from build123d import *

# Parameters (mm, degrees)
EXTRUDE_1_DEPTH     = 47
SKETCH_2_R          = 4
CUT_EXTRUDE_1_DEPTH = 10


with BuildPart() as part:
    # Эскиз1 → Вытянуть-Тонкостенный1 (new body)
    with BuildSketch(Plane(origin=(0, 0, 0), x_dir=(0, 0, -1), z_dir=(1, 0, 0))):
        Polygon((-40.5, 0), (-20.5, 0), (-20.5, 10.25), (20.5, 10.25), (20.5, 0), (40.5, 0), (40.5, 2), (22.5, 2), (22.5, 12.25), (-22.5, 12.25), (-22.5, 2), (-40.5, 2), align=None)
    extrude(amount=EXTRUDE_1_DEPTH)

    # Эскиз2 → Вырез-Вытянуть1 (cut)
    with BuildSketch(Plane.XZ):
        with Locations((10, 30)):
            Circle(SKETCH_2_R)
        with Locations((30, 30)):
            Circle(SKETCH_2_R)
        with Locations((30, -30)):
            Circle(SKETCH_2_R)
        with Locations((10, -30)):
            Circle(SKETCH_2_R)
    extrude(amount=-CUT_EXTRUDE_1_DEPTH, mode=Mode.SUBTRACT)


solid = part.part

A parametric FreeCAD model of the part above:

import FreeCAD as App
import Part
import Sketcher

doc = App.newDocument("Part")
params = doc.addObject("Spreadsheet::Sheet", "Params")
for row, (alias, value) in enumerate([
    ("sketch1_width", "2 mm"),
    ("sketch1_height", "20 mm"),
    ("sketch1_height2", "41 mm"),
    ("sketch1_height3", "18 mm"),
    ("sketch1_width2", "10.25 mm"),
    ("pad1_length", "47 mm"),
    ("sketch2_diameter", "8 mm"),
    ("pocket1_length", "10 mm"),
], start=1):
    params.set(f"A{row}", alias)
    params.set(f"B{row}", "=" + value)
    params.setAlias(f"B{row}", alias)

body = doc.addObject("PartDesign::Body", "Body")

# Sketch on YZ plane
sketch1 = doc.addObject("Sketcher::SketchObject", "Sketch")
body.addObject(sketch1)
sketch1.AttachmentSupport = (doc.YZ_Plane, [""])
sketch1.MapMode = "FlatFace"
sketch1.addGeometry([
    Part.LineSegment(App.Vector(0, 40.5, 0), App.Vector(0, 20.5, 0)),  # 0
    Part.LineSegment(App.Vector(0, 20.5, 0), App.Vector(10.2, 20.5, 0)),  # 1
    Part.LineSegment(App.Vector(10.2, 20.5, 0), App.Vector(10.2, -20.5, 0)),  # 2
    Part.LineSegment(App.Vector(10.2, -20.5, 0), App.Vector(0, -20.5, 0)),  # 3
    Part.LineSegment(App.Vector(0, -20.5, 0), App.Vector(0, -40.5, 0)),  # 4
    Part.LineSegment(App.Vector(0, -40.5, 0), App.Vector(2, -40.5, 0)),  # 5
    Part.LineSegment(App.Vector(2, -40.5, 0), App.Vector(2, -22.5, 0)),  # 6
    Part.LineSegment(App.Vector(2, -22.5, 0), App.Vector(12.2, -22.5, 0)),  # 7
    Part.LineSegment(App.Vector(12.2, -22.5, 0), App.Vector(12.2, 22.5, 0)),  # 8
    Part.LineSegment(App.Vector(12.2, 22.5, 0), App.Vector(2, 22.5, 0)),  # 9
    Part.LineSegment(App.Vector(2, 22.5, 0), App.Vector(2, 40.5, 0)),  # 10
    Part.LineSegment(App.Vector(2, 40.5, 0), App.Vector(0, 40.5, 0)),  # 11
], False)
sketch1.addConstraint([
    Sketcher.Constraint("Coincident", 0, 2, 1, 1),
    Sketcher.Constraint("Coincident", 1, 2, 2, 1),
    Sketcher.Constraint("Coincident", 2, 2, 3, 1),
    Sketcher.Constraint("Coincident", 3, 2, 4, 1),
    Sketcher.Constraint("Coincident", 4, 2, 5, 1),
    Sketcher.Constraint("Coincident", 5, 2, 6, 1),
    Sketcher.Constraint("Coincident", 6, 2, 7, 1),
    Sketcher.Constraint("Coincident", 7, 2, 8, 1),
    Sketcher.Constraint("Coincident", 8, 2, 9, 1),
    Sketcher.Constraint("Coincident", 9, 2, 10, 1),
    Sketcher.Constraint("Coincident", 10, 2, 11, 1),
    Sketcher.Constraint("Coincident", 11, 2, 0, 1),
    Sketcher.Constraint("Vertical", 0),
    Sketcher.Constraint("Horizontal", 1),
    Sketcher.Constraint("Vertical", 2),
    Sketcher.Constraint("Horizontal", 3),
    Sketcher.Constraint("Vertical", 4),
    Sketcher.Constraint("Horizontal", 5),
    Sketcher.Constraint("Vertical", 6),
    Sketcher.Constraint("Horizontal", 7),
    Sketcher.Constraint("Vertical", 8),
    Sketcher.Constraint("Horizontal", 9),
    Sketcher.Constraint("Vertical", 10),
    Sketcher.Constraint("Horizontal", 11),
    Sketcher.Constraint("Symmetric", 0, 2, 3, 2, -1, 1),
    Sketcher.Constraint("Symmetric", 6, 2, 9, 2, -1),
    Sketcher.Constraint("Symmetric", 4, 2, 11, 2, -1),
    Sketcher.Constraint("Equal", 3, 7),
    Sketcher.Constraint("DistanceX", 5, 1, 5, 2, 2.0),
    Sketcher.Constraint("DistanceY", 0, 2, 0, 1, 20.0),
    Sketcher.Constraint("DistanceY", 2, 2, 2, 1, 41.0),
    Sketcher.Constraint("DistanceY", 6, 1, 6, 2, 18.0),
    Sketcher.Constraint("DistanceX", 1, 1, 1, 2, 10.25),
])
sketch1.setExpression("Constraints[28]", "Params.sketch1_width")
sketch1.setExpression("Constraints[29]", "Params.sketch1_height")
sketch1.setExpression("Constraints[30]", "Params.sketch1_height2")
sketch1.setExpression("Constraints[31]", "Params.sketch1_height3")
sketch1.setExpression("Constraints[32]", "Params.sketch1_width2")
pad1 = doc.addObject("PartDesign::Pad", "Pad")
body.addObject(pad1)
pad1.Profile = sketch1
pad1.setExpression("Length", "Params.pad1_length")

# Sketch on XZ plane
sketch2 = doc.addObject("Sketcher::SketchObject", "Sketch001")
body.addObject(sketch2)
sketch2.AttachmentSupport = (doc.XZ_Plane, [""])
sketch2.MapMode = "FlatFace"
sketch2.addGeometry([
    Part.Circle(App.Vector(10, 30, 0), App.Vector(0, 0, 1), 4),
    Part.Circle(App.Vector(30, 30, 0), App.Vector(0, 0, 1), 4),
    Part.Circle(App.Vector(30, -30, 0), App.Vector(0, 0, 1), 4),
    Part.Circle(App.Vector(10, -30, 0), App.Vector(0, 0, 1), 4),
], False)
sketch2.addConstraint([
    Sketcher.Constraint("Equal", 0, 1),
    Sketcher.Constraint("Equal", 1, 2),
    Sketcher.Constraint("Equal", 2, 3),
    Sketcher.Constraint("Symmetric", 1, 3, 2, 3, -1),
    Sketcher.Constraint("Symmetric", 0, 3, 3, 3, -1),
    Sketcher.Constraint("Horizontal", 0, 3, 1, 3),
    Sketcher.Constraint("Diameter", 0, 8.0),
    Sketcher.Constraint("DistanceX", -1, 1, 0, 3, 10.0),
    Sketcher.Constraint("DistanceY", -1, 1, 0, 3, 30.0),
    Sketcher.Constraint("DistanceX", -1, 1, 1, 3, 30.0),
])
sketch2.setExpression("Constraints[6]", "Params.sketch2_diameter")
pocket1 = doc.addObject("PartDesign::Pocket", "Pocket")
body.addObject(pocket1)
pocket1.Profile = sketch2
pocket1.setExpression("Length", "Params.pocket1_length")

doc.recompute()
